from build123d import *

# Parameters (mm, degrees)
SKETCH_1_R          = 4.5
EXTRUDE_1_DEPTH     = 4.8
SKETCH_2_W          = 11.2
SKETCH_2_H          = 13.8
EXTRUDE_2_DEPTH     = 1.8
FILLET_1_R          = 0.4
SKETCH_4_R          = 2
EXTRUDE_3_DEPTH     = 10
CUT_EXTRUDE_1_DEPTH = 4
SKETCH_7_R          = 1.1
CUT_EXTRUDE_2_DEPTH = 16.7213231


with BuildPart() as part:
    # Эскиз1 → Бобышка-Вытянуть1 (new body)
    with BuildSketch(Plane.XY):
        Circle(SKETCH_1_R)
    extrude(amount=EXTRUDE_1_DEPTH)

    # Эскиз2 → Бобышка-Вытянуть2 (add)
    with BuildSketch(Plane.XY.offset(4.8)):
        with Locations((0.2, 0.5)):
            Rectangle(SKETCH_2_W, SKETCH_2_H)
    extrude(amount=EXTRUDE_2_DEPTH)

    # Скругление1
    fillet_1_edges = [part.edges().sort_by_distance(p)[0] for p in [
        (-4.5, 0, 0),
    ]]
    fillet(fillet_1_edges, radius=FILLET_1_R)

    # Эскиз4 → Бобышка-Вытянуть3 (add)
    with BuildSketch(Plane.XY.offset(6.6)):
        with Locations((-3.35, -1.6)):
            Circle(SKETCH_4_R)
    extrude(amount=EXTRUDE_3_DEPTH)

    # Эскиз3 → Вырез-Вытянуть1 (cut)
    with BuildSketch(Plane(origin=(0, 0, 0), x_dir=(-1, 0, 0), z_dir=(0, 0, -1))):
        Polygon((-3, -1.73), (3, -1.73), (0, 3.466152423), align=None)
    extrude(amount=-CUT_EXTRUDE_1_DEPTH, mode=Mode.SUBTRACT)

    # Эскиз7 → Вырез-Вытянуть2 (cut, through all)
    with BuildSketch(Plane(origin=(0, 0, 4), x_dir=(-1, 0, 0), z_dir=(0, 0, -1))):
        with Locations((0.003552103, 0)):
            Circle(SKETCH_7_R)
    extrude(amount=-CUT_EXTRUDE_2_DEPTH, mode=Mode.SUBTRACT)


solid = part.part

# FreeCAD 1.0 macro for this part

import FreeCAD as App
import Part
import Sketcher

V = App.Vector
Q = App.Units.Quantity


def edges_at(feature, points):
    """Names of the edges that pass closest to the given points."""
    edges = feature.Shape.Edges
    near = lambda p: min(range(len(edges)), key=lambda i: edges[i].distToShape(Part.Vertex(*p))[0])
    return sorted({f"Edge{near(p) + 1}" for p in points})

doc = App.newDocument("Part")
params = doc.addObject("Spreadsheet::Sheet", "Params")
for row, (alias, value) in enumerate([
    ("sketch1_diameter", "9 mm"),
    ("pad1_length", "4.8 mm"),
    ("sketch2_width", "11.2 mm"),
    ("sketch2_height", "13.8 mm"),
    ("pad2_length", "1.8 mm"),
    ("fillet_radius", "0.4 mm"),
    ("sketch3_diameter", "4 mm"),
    ("pad3_length", "10 mm"),
    ("sketch4_width", "6 mm"),
    ("pocket1_length", "4 mm"),
    ("sketch5_diameter", "2.2 mm"),
], start=1):
    params.set(f"A{row}", alias)
    params.set(f"B{row}", "=" + value)
    params.setAlias(f"B{row}", alias)

body = doc.addObject("PartDesign::Body", "Body")

# Sketch on XY plane
sketch1 = doc.addObject("Sketcher::SketchObject", "Sketch")
body.addObject(sketch1)
sketch1.AttachmentSupport = (doc.XY_Plane, [""])
sketch1.MapMode = "FlatFace"
sketch1.addGeometry(Part.Circle(V(0, 0, 0), V(0, 0, 1), 4.5), False)
sketch1.addConstraint([
    Sketcher.Constraint("Coincident", 0, 3, -1, 1),
    Sketcher.Constraint("Diameter", 0, 9.0),
])
sketch1.setExpression("Constraints[1]", "Params.sketch1_diameter")
pad1 = doc.addObject("PartDesign::Pad", "Pad")
body.addObject(pad1)
pad1.Profile = sketch1
pad1.setExpression("Length", "Params.pad1_length")

# Sketch on XY plane
sketch2 = doc.addObject("Sketcher::SketchObject", "Sketch001")
body.addObject(sketch2)
sketch2.AttachmentSupport = (doc.XY_Plane, [""])
sketch2.MapMode = "FlatFace"
sketch2.AttachmentOffset = App.Placement(V(0, 0, 4.8), App.Rotation())
sketch2.addGeometry([
    Part.LineSegment(V(-5.4, 7.4, 0), V(-5.4, -6.4, 0)),
    Part.LineSegment(V(-5.4, -6.4, 0), V(5.8, -6.4, 0)),
    Part.LineSegment(V(5.8, -6.4, 0), V(5.8, 7.4, 0)),
    Part.LineSegment(V(5.8, 7.4, 0), V(-5.4, 7.4, 0)),
], False)
sketch2.addConstraint([
    Sketcher.Constraint("Coincident", 0, 2, 1, 1),
    Sketcher.Constraint("Coincident", 1, 2, 2, 1),
    Sketcher.Constraint("Coincident", 2, 2, 3, 1),
    Sketcher.Constraint("Coincident", 3, 2, 0, 1),
    Sketcher.Constraint("Vertical", 0),
    Sketcher.Constraint("Horizontal", 1),
    Sketcher.Constraint("Vertical", 2),
    Sketcher.Constraint("Horizontal", 3),
    Sketcher.Constraint("DistanceX", 1, 1, 1, 2, 11.2),
    Sketcher.Constraint("DistanceY", 0, 2, 0, 1, 13.8),
    Sketcher.Constraint("DistanceX", 0, 2, -1, 1, 5.4),
    Sketcher.Constraint("DistanceY", 0, 2, -1, 1, 6.4),
])
sketch2.setExpression("Constraints[8]", "Params.sketch2_width")
sketch2.setExpression("Constraints[9]", "Params.sketch2_height")
pad2 = doc.addObject("PartDesign::Pad", "Pad001")
body.addObject(pad2)
pad2.Profile = sketch2
pad2.setExpression("Length", "Params.pad2_length")
doc.recompute()

fillet = doc.addObject("PartDesign::Fillet", "Fillet")
body.addObject(fillet)
fillet.Base = (pad2, edges_at(pad2, [(-4.5, 0, 0)]))
fillet.setExpression("Radius", "Params.fillet_radius")

# Sketch on XY plane
sketch3 = doc.addObject("Sketcher::SketchObject", "Sketch002")
body.addObject(sketch3)
sketch3.AttachmentSupport = (doc.XY_Plane, [""])
sketch3.MapMode = "FlatFace"
sketch3.AttachmentOffset = App.Placement(V(0, 0, 6.6), App.Rotation())
sketch3.addGeometry(Part.Circle(V(-3.35, -1.6, 0), V(0, 0, 1), 2), False)
sketch3.addConstraint([
    Sketcher.Constraint("Diameter", 0, 4.0),
    Sketcher.Constraint("DistanceY", 0, 3, -1, 1, 1.6),
    Sketcher.Constraint("DistanceX", 0, 3, -1, 1, 3.35),
])
sketch3.setExpression("Constraints[0]", "Params.sketch3_diameter")
pad3 = doc.addObject("PartDesign::Pad", "Pad002")
body.addObject(pad3)
pad3.Profile = sketch3
pad3.setExpression("Length", "Params.pad3_length")

# Sketch on XY plane
sketch4 = doc.addObject("Sketcher::SketchObject", "Sketch003")
body.addObject(sketch4)
sketch4.AttachmentSupport = (doc.XY_Plane, [""])
sketch4.MapMode = "FlatFace"
sketch4.addGeometry([
    Part.LineSegment(V(3, -1.73, 0), V(-3, -1.73, 0)),
    Part.LineSegment(V(-3, -1.73, 0), V(0, 3.466152, 0)),
    Part.LineSegment(V(0, 3.466152, 0), V(3, -1.73, 0)),
], False)
sketch4.addConstraint([
    Sketcher.Constraint("Coincident", 0, 2, 1, 1),
    Sketcher.Constraint("Coincident", 1, 2, 2, 1),
    Sketcher.Constraint("Coincident", 2, 2, 0, 1),
    Sketcher.Constraint("Horizontal", 0),
    Sketcher.Constraint("PointOnObject", 1, 2, -2),
    Sketcher.Constraint("Equal", 1, 2),
    Sketcher.Constraint("DistanceX", 0, 2, 0, 1, 6.0),
    Sketcher.Constraint("Angle", 1, Q("60 deg")),
    Sketcher.Constraint("DistanceY", 0, 2, -1, 1, 1.73),
])
sketch4.setExpression("Constraints[6]", "Params.sketch4_width")
pocket1 = doc.addObject("PartDesign::Pocket", "Pocket")
body.addObject(pocket1)
pocket1.Profile = sketch4
pocket1.setExpression("Length", "Params.pocket1_length")
pocket1.Reversed = True

# Sketch on XY plane
sketch5 = doc.addObject("Sketcher::SketchObject", "Sketch004")
body.addObject(sketch5)
sketch5.AttachmentSupport = (doc.XY_Plane, [""])
sketch5.MapMode = "FlatFace"
sketch5.AttachmentOffset = App.Placement(V(0, 0, 4), App.Rotation())
sketch5.addGeometry(Part.Circle(V(-0.003552, 0, 0), V(0, 0, 1), 1.1), False)
sketch5.addConstraint([
    Sketcher.Constraint("PointOnObject", 0, 3, -1),
    Sketcher.Constraint("Diameter", 0, 2.2),
    Sketcher.Constraint("DistanceX", 0, 3, -1, 1, 0.003552),
])
sketch5.setExpression("Constraints[1]", "Params.sketch5_diameter")
pocket2 = doc.addObject("PartDesign::Pocket", "Pocket001")
body.addObject(pocket2)
pocket2.Profile = sketch5
pocket2.Type = "ThroughAll"
pocket2.Reversed = True

doc.recompute()
